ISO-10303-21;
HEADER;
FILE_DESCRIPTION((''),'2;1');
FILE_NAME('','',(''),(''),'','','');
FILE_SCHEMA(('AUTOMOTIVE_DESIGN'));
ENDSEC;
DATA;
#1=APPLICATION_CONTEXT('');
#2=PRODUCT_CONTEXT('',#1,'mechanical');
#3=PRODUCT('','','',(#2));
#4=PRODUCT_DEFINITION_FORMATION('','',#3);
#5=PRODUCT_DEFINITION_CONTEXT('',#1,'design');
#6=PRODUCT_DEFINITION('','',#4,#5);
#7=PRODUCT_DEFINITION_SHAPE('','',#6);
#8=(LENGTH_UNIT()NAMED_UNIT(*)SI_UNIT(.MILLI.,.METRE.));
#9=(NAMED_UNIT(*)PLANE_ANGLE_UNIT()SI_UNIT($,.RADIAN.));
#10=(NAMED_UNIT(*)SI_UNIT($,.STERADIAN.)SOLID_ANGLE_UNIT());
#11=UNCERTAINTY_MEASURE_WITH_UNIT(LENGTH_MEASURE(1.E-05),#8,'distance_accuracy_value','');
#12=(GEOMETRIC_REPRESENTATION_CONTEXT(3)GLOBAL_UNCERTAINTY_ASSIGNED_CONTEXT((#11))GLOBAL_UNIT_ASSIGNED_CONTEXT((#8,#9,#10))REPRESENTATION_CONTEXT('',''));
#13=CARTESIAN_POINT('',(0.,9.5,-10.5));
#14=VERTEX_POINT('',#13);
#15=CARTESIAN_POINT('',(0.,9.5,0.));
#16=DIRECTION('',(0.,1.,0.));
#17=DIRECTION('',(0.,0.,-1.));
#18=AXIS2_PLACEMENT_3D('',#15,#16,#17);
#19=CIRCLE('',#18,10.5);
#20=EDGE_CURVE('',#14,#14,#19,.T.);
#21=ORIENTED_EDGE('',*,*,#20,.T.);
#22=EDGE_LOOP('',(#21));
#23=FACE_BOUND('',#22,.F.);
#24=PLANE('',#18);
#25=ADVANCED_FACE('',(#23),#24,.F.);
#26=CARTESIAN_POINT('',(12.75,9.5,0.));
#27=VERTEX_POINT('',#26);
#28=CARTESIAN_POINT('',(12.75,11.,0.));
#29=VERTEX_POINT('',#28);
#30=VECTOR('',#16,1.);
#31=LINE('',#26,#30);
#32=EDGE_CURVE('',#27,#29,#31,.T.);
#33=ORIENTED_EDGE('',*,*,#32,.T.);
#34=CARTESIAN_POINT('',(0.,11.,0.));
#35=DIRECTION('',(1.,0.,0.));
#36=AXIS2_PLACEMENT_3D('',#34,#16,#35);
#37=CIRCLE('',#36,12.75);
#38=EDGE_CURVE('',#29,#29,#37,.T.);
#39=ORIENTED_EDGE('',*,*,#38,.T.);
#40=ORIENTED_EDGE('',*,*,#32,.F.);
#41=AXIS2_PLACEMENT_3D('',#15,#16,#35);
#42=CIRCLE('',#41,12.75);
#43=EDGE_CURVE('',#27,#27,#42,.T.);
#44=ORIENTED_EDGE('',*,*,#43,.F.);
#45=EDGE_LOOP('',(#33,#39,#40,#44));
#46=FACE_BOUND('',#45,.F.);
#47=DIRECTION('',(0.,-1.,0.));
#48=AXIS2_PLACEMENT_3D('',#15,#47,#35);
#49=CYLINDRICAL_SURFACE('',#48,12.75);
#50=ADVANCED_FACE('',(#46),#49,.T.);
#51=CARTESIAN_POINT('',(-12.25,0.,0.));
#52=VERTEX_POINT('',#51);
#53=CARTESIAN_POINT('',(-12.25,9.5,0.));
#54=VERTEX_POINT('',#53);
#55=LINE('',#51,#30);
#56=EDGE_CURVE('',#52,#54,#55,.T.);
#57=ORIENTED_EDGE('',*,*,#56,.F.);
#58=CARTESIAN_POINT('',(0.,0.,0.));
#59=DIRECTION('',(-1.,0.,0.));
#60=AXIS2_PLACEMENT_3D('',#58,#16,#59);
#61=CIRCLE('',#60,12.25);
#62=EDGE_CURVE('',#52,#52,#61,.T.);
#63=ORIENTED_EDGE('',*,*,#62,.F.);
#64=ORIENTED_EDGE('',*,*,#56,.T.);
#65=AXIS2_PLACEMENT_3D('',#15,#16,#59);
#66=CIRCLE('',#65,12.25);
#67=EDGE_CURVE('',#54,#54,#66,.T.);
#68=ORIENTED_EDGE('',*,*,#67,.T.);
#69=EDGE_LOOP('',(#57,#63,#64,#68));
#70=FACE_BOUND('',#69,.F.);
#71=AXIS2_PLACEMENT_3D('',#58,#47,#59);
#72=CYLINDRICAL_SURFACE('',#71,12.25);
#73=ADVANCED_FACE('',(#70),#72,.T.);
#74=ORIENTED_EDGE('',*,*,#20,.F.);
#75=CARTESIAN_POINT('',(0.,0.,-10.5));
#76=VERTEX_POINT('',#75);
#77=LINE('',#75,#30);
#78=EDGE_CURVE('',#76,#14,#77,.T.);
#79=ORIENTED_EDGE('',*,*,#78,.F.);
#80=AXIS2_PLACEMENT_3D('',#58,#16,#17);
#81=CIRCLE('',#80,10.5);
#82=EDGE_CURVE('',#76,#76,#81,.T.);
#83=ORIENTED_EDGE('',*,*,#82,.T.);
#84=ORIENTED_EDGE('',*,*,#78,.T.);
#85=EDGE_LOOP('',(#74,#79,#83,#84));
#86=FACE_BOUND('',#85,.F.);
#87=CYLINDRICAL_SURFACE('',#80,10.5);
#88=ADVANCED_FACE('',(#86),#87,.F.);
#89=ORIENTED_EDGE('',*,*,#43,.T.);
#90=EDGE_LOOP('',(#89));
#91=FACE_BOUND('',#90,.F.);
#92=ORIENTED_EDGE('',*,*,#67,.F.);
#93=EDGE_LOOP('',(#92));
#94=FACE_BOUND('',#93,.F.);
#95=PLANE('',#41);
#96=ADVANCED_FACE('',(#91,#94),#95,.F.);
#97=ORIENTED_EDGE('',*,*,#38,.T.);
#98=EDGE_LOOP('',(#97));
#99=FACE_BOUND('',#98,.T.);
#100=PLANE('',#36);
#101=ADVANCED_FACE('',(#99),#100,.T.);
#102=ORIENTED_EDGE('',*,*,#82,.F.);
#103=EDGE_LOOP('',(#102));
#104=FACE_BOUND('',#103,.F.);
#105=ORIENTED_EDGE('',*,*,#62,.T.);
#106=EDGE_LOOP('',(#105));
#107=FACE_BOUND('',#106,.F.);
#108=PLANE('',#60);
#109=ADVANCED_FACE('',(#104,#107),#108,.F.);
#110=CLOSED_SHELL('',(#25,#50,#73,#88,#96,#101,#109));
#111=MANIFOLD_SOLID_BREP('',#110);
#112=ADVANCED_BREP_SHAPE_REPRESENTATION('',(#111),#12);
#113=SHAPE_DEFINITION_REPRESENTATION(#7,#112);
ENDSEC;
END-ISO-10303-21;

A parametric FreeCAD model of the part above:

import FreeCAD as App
import Part
import Sketcher

V = App.Vector
Q = App.Units.Quantity

doc = App.newDocument("Part")
params = doc.addObject("Spreadsheet::Sheet", "Params")
for row, (alias, value) in enumerate([
    ("sketch1_diameter", "24.5 mm"),
    ("pad1_length", "9.5 mm"),
    ("sketch2_diameter", "25.5 mm"),
    ("pad2_length", "1.5 mm"),
    ("sketch3_diameter", "21 mm"),
    ("hole_diameter", "21 mm"),
    ("hole_depth", "9.5 mm"),
], start=1):
    params.set(f"A{row}", alias)
    params.set(f"B{row}", "=" + value)
    params.setAlias(f"B{row}", alias)

body = doc.addObject("PartDesign::Body", "Body")

# Sketch on XZ plane
sketch1 = doc.addObject("Sketcher::SketchObject", "Sketch")
body.addObject(sketch1)
sketch1.AttachmentSupport = (doc.XZ_Plane, [""])
sketch1.MapMode = "FlatFace"
sketch1.addGeometry(Part.Circle(V(0, 0, 0), V(0, 0, 1), 12), False)
sketch1.addConstraint(Sketcher.Constraint("Coincident", 0, 3, -1, 1))
sketch1.addConstraint(Sketcher.Constraint("Diameter", 0, Q("24.5 mm")))
sketch1.setExpression("Constraints[1]", "Params.sketch1_diameter")
pad1 = doc.addObject("PartDesign::Pad", "Pad")
body.addObject(pad1)
pad1.Profile = sketch1
pad1.setExpression("Length", "Params.pad1_length")
pad1.Reversed = True

# Sketch on XZ plane
sketch2 = doc.addObject("Sketcher::SketchObject", "Sketch001")
body.addObject(sketch2)
sketch2.AttachmentSupport = (doc.XZ_Plane, [""])
sketch2.MapMode = "FlatFace"
sketch2.AttachmentOffset = App.Placement(V(0, 0, -9.5), App.Rotation())
sketch2.addGeometry(Part.Circle(V(0, 0, 0), V(0, 0, 1), 13), False)
sketch2.addConstraint(Sketcher.Constraint("Coincident", 0, 3, -1, 1))
sketch2.addConstraint(Sketcher.Constraint("Diameter", 0, Q("25.5 mm")))
sketch2.setExpression("Constraints[1]", "Params.sketch2_diameter")
pad2 = doc.addObject("PartDesign::Pad", "Pad001")
body.addObject(pad2)
pad2.Profile = sketch2
pad2.setExpression("Length", "Params.pad2_length")
pad2.Reversed = True

# Sketch on XZ plane
sketch3 = doc.addObject("Sketcher::SketchObject", "Sketch002")
body.addObject(sketch3)
sketch3.AttachmentSupport = (doc.XZ_Plane, [""])
sketch3.MapMode = "FlatFace"
sketch3.addGeometry(Part.Circle(V(0, 0, 0), V(0, 0, 1), 10), False)
sketch3.addConstraint(Sketcher.Constraint("Coincident", 0, 3, -1, 1))
sketch3.addConstraint(Sketcher.Constraint("Diameter", 0, Q("21 mm")))
sketch3.setExpression("Constraints[1]", "Params.sketch3_diameter")
doc.recompute()
hole = doc.addObject("PartDesign::Hole", "Hole")
body.addObject(hole)
hole.Profile = sketch3
hole.ThreadType = "None"
hole.setExpression("Diameter", "Params.hole_diameter")
hole.DepthType = "Dimension"
hole.setExpression("Depth", "Params.hole_depth")
hole.DrillPoint = "Flat"

doc.recompute()
